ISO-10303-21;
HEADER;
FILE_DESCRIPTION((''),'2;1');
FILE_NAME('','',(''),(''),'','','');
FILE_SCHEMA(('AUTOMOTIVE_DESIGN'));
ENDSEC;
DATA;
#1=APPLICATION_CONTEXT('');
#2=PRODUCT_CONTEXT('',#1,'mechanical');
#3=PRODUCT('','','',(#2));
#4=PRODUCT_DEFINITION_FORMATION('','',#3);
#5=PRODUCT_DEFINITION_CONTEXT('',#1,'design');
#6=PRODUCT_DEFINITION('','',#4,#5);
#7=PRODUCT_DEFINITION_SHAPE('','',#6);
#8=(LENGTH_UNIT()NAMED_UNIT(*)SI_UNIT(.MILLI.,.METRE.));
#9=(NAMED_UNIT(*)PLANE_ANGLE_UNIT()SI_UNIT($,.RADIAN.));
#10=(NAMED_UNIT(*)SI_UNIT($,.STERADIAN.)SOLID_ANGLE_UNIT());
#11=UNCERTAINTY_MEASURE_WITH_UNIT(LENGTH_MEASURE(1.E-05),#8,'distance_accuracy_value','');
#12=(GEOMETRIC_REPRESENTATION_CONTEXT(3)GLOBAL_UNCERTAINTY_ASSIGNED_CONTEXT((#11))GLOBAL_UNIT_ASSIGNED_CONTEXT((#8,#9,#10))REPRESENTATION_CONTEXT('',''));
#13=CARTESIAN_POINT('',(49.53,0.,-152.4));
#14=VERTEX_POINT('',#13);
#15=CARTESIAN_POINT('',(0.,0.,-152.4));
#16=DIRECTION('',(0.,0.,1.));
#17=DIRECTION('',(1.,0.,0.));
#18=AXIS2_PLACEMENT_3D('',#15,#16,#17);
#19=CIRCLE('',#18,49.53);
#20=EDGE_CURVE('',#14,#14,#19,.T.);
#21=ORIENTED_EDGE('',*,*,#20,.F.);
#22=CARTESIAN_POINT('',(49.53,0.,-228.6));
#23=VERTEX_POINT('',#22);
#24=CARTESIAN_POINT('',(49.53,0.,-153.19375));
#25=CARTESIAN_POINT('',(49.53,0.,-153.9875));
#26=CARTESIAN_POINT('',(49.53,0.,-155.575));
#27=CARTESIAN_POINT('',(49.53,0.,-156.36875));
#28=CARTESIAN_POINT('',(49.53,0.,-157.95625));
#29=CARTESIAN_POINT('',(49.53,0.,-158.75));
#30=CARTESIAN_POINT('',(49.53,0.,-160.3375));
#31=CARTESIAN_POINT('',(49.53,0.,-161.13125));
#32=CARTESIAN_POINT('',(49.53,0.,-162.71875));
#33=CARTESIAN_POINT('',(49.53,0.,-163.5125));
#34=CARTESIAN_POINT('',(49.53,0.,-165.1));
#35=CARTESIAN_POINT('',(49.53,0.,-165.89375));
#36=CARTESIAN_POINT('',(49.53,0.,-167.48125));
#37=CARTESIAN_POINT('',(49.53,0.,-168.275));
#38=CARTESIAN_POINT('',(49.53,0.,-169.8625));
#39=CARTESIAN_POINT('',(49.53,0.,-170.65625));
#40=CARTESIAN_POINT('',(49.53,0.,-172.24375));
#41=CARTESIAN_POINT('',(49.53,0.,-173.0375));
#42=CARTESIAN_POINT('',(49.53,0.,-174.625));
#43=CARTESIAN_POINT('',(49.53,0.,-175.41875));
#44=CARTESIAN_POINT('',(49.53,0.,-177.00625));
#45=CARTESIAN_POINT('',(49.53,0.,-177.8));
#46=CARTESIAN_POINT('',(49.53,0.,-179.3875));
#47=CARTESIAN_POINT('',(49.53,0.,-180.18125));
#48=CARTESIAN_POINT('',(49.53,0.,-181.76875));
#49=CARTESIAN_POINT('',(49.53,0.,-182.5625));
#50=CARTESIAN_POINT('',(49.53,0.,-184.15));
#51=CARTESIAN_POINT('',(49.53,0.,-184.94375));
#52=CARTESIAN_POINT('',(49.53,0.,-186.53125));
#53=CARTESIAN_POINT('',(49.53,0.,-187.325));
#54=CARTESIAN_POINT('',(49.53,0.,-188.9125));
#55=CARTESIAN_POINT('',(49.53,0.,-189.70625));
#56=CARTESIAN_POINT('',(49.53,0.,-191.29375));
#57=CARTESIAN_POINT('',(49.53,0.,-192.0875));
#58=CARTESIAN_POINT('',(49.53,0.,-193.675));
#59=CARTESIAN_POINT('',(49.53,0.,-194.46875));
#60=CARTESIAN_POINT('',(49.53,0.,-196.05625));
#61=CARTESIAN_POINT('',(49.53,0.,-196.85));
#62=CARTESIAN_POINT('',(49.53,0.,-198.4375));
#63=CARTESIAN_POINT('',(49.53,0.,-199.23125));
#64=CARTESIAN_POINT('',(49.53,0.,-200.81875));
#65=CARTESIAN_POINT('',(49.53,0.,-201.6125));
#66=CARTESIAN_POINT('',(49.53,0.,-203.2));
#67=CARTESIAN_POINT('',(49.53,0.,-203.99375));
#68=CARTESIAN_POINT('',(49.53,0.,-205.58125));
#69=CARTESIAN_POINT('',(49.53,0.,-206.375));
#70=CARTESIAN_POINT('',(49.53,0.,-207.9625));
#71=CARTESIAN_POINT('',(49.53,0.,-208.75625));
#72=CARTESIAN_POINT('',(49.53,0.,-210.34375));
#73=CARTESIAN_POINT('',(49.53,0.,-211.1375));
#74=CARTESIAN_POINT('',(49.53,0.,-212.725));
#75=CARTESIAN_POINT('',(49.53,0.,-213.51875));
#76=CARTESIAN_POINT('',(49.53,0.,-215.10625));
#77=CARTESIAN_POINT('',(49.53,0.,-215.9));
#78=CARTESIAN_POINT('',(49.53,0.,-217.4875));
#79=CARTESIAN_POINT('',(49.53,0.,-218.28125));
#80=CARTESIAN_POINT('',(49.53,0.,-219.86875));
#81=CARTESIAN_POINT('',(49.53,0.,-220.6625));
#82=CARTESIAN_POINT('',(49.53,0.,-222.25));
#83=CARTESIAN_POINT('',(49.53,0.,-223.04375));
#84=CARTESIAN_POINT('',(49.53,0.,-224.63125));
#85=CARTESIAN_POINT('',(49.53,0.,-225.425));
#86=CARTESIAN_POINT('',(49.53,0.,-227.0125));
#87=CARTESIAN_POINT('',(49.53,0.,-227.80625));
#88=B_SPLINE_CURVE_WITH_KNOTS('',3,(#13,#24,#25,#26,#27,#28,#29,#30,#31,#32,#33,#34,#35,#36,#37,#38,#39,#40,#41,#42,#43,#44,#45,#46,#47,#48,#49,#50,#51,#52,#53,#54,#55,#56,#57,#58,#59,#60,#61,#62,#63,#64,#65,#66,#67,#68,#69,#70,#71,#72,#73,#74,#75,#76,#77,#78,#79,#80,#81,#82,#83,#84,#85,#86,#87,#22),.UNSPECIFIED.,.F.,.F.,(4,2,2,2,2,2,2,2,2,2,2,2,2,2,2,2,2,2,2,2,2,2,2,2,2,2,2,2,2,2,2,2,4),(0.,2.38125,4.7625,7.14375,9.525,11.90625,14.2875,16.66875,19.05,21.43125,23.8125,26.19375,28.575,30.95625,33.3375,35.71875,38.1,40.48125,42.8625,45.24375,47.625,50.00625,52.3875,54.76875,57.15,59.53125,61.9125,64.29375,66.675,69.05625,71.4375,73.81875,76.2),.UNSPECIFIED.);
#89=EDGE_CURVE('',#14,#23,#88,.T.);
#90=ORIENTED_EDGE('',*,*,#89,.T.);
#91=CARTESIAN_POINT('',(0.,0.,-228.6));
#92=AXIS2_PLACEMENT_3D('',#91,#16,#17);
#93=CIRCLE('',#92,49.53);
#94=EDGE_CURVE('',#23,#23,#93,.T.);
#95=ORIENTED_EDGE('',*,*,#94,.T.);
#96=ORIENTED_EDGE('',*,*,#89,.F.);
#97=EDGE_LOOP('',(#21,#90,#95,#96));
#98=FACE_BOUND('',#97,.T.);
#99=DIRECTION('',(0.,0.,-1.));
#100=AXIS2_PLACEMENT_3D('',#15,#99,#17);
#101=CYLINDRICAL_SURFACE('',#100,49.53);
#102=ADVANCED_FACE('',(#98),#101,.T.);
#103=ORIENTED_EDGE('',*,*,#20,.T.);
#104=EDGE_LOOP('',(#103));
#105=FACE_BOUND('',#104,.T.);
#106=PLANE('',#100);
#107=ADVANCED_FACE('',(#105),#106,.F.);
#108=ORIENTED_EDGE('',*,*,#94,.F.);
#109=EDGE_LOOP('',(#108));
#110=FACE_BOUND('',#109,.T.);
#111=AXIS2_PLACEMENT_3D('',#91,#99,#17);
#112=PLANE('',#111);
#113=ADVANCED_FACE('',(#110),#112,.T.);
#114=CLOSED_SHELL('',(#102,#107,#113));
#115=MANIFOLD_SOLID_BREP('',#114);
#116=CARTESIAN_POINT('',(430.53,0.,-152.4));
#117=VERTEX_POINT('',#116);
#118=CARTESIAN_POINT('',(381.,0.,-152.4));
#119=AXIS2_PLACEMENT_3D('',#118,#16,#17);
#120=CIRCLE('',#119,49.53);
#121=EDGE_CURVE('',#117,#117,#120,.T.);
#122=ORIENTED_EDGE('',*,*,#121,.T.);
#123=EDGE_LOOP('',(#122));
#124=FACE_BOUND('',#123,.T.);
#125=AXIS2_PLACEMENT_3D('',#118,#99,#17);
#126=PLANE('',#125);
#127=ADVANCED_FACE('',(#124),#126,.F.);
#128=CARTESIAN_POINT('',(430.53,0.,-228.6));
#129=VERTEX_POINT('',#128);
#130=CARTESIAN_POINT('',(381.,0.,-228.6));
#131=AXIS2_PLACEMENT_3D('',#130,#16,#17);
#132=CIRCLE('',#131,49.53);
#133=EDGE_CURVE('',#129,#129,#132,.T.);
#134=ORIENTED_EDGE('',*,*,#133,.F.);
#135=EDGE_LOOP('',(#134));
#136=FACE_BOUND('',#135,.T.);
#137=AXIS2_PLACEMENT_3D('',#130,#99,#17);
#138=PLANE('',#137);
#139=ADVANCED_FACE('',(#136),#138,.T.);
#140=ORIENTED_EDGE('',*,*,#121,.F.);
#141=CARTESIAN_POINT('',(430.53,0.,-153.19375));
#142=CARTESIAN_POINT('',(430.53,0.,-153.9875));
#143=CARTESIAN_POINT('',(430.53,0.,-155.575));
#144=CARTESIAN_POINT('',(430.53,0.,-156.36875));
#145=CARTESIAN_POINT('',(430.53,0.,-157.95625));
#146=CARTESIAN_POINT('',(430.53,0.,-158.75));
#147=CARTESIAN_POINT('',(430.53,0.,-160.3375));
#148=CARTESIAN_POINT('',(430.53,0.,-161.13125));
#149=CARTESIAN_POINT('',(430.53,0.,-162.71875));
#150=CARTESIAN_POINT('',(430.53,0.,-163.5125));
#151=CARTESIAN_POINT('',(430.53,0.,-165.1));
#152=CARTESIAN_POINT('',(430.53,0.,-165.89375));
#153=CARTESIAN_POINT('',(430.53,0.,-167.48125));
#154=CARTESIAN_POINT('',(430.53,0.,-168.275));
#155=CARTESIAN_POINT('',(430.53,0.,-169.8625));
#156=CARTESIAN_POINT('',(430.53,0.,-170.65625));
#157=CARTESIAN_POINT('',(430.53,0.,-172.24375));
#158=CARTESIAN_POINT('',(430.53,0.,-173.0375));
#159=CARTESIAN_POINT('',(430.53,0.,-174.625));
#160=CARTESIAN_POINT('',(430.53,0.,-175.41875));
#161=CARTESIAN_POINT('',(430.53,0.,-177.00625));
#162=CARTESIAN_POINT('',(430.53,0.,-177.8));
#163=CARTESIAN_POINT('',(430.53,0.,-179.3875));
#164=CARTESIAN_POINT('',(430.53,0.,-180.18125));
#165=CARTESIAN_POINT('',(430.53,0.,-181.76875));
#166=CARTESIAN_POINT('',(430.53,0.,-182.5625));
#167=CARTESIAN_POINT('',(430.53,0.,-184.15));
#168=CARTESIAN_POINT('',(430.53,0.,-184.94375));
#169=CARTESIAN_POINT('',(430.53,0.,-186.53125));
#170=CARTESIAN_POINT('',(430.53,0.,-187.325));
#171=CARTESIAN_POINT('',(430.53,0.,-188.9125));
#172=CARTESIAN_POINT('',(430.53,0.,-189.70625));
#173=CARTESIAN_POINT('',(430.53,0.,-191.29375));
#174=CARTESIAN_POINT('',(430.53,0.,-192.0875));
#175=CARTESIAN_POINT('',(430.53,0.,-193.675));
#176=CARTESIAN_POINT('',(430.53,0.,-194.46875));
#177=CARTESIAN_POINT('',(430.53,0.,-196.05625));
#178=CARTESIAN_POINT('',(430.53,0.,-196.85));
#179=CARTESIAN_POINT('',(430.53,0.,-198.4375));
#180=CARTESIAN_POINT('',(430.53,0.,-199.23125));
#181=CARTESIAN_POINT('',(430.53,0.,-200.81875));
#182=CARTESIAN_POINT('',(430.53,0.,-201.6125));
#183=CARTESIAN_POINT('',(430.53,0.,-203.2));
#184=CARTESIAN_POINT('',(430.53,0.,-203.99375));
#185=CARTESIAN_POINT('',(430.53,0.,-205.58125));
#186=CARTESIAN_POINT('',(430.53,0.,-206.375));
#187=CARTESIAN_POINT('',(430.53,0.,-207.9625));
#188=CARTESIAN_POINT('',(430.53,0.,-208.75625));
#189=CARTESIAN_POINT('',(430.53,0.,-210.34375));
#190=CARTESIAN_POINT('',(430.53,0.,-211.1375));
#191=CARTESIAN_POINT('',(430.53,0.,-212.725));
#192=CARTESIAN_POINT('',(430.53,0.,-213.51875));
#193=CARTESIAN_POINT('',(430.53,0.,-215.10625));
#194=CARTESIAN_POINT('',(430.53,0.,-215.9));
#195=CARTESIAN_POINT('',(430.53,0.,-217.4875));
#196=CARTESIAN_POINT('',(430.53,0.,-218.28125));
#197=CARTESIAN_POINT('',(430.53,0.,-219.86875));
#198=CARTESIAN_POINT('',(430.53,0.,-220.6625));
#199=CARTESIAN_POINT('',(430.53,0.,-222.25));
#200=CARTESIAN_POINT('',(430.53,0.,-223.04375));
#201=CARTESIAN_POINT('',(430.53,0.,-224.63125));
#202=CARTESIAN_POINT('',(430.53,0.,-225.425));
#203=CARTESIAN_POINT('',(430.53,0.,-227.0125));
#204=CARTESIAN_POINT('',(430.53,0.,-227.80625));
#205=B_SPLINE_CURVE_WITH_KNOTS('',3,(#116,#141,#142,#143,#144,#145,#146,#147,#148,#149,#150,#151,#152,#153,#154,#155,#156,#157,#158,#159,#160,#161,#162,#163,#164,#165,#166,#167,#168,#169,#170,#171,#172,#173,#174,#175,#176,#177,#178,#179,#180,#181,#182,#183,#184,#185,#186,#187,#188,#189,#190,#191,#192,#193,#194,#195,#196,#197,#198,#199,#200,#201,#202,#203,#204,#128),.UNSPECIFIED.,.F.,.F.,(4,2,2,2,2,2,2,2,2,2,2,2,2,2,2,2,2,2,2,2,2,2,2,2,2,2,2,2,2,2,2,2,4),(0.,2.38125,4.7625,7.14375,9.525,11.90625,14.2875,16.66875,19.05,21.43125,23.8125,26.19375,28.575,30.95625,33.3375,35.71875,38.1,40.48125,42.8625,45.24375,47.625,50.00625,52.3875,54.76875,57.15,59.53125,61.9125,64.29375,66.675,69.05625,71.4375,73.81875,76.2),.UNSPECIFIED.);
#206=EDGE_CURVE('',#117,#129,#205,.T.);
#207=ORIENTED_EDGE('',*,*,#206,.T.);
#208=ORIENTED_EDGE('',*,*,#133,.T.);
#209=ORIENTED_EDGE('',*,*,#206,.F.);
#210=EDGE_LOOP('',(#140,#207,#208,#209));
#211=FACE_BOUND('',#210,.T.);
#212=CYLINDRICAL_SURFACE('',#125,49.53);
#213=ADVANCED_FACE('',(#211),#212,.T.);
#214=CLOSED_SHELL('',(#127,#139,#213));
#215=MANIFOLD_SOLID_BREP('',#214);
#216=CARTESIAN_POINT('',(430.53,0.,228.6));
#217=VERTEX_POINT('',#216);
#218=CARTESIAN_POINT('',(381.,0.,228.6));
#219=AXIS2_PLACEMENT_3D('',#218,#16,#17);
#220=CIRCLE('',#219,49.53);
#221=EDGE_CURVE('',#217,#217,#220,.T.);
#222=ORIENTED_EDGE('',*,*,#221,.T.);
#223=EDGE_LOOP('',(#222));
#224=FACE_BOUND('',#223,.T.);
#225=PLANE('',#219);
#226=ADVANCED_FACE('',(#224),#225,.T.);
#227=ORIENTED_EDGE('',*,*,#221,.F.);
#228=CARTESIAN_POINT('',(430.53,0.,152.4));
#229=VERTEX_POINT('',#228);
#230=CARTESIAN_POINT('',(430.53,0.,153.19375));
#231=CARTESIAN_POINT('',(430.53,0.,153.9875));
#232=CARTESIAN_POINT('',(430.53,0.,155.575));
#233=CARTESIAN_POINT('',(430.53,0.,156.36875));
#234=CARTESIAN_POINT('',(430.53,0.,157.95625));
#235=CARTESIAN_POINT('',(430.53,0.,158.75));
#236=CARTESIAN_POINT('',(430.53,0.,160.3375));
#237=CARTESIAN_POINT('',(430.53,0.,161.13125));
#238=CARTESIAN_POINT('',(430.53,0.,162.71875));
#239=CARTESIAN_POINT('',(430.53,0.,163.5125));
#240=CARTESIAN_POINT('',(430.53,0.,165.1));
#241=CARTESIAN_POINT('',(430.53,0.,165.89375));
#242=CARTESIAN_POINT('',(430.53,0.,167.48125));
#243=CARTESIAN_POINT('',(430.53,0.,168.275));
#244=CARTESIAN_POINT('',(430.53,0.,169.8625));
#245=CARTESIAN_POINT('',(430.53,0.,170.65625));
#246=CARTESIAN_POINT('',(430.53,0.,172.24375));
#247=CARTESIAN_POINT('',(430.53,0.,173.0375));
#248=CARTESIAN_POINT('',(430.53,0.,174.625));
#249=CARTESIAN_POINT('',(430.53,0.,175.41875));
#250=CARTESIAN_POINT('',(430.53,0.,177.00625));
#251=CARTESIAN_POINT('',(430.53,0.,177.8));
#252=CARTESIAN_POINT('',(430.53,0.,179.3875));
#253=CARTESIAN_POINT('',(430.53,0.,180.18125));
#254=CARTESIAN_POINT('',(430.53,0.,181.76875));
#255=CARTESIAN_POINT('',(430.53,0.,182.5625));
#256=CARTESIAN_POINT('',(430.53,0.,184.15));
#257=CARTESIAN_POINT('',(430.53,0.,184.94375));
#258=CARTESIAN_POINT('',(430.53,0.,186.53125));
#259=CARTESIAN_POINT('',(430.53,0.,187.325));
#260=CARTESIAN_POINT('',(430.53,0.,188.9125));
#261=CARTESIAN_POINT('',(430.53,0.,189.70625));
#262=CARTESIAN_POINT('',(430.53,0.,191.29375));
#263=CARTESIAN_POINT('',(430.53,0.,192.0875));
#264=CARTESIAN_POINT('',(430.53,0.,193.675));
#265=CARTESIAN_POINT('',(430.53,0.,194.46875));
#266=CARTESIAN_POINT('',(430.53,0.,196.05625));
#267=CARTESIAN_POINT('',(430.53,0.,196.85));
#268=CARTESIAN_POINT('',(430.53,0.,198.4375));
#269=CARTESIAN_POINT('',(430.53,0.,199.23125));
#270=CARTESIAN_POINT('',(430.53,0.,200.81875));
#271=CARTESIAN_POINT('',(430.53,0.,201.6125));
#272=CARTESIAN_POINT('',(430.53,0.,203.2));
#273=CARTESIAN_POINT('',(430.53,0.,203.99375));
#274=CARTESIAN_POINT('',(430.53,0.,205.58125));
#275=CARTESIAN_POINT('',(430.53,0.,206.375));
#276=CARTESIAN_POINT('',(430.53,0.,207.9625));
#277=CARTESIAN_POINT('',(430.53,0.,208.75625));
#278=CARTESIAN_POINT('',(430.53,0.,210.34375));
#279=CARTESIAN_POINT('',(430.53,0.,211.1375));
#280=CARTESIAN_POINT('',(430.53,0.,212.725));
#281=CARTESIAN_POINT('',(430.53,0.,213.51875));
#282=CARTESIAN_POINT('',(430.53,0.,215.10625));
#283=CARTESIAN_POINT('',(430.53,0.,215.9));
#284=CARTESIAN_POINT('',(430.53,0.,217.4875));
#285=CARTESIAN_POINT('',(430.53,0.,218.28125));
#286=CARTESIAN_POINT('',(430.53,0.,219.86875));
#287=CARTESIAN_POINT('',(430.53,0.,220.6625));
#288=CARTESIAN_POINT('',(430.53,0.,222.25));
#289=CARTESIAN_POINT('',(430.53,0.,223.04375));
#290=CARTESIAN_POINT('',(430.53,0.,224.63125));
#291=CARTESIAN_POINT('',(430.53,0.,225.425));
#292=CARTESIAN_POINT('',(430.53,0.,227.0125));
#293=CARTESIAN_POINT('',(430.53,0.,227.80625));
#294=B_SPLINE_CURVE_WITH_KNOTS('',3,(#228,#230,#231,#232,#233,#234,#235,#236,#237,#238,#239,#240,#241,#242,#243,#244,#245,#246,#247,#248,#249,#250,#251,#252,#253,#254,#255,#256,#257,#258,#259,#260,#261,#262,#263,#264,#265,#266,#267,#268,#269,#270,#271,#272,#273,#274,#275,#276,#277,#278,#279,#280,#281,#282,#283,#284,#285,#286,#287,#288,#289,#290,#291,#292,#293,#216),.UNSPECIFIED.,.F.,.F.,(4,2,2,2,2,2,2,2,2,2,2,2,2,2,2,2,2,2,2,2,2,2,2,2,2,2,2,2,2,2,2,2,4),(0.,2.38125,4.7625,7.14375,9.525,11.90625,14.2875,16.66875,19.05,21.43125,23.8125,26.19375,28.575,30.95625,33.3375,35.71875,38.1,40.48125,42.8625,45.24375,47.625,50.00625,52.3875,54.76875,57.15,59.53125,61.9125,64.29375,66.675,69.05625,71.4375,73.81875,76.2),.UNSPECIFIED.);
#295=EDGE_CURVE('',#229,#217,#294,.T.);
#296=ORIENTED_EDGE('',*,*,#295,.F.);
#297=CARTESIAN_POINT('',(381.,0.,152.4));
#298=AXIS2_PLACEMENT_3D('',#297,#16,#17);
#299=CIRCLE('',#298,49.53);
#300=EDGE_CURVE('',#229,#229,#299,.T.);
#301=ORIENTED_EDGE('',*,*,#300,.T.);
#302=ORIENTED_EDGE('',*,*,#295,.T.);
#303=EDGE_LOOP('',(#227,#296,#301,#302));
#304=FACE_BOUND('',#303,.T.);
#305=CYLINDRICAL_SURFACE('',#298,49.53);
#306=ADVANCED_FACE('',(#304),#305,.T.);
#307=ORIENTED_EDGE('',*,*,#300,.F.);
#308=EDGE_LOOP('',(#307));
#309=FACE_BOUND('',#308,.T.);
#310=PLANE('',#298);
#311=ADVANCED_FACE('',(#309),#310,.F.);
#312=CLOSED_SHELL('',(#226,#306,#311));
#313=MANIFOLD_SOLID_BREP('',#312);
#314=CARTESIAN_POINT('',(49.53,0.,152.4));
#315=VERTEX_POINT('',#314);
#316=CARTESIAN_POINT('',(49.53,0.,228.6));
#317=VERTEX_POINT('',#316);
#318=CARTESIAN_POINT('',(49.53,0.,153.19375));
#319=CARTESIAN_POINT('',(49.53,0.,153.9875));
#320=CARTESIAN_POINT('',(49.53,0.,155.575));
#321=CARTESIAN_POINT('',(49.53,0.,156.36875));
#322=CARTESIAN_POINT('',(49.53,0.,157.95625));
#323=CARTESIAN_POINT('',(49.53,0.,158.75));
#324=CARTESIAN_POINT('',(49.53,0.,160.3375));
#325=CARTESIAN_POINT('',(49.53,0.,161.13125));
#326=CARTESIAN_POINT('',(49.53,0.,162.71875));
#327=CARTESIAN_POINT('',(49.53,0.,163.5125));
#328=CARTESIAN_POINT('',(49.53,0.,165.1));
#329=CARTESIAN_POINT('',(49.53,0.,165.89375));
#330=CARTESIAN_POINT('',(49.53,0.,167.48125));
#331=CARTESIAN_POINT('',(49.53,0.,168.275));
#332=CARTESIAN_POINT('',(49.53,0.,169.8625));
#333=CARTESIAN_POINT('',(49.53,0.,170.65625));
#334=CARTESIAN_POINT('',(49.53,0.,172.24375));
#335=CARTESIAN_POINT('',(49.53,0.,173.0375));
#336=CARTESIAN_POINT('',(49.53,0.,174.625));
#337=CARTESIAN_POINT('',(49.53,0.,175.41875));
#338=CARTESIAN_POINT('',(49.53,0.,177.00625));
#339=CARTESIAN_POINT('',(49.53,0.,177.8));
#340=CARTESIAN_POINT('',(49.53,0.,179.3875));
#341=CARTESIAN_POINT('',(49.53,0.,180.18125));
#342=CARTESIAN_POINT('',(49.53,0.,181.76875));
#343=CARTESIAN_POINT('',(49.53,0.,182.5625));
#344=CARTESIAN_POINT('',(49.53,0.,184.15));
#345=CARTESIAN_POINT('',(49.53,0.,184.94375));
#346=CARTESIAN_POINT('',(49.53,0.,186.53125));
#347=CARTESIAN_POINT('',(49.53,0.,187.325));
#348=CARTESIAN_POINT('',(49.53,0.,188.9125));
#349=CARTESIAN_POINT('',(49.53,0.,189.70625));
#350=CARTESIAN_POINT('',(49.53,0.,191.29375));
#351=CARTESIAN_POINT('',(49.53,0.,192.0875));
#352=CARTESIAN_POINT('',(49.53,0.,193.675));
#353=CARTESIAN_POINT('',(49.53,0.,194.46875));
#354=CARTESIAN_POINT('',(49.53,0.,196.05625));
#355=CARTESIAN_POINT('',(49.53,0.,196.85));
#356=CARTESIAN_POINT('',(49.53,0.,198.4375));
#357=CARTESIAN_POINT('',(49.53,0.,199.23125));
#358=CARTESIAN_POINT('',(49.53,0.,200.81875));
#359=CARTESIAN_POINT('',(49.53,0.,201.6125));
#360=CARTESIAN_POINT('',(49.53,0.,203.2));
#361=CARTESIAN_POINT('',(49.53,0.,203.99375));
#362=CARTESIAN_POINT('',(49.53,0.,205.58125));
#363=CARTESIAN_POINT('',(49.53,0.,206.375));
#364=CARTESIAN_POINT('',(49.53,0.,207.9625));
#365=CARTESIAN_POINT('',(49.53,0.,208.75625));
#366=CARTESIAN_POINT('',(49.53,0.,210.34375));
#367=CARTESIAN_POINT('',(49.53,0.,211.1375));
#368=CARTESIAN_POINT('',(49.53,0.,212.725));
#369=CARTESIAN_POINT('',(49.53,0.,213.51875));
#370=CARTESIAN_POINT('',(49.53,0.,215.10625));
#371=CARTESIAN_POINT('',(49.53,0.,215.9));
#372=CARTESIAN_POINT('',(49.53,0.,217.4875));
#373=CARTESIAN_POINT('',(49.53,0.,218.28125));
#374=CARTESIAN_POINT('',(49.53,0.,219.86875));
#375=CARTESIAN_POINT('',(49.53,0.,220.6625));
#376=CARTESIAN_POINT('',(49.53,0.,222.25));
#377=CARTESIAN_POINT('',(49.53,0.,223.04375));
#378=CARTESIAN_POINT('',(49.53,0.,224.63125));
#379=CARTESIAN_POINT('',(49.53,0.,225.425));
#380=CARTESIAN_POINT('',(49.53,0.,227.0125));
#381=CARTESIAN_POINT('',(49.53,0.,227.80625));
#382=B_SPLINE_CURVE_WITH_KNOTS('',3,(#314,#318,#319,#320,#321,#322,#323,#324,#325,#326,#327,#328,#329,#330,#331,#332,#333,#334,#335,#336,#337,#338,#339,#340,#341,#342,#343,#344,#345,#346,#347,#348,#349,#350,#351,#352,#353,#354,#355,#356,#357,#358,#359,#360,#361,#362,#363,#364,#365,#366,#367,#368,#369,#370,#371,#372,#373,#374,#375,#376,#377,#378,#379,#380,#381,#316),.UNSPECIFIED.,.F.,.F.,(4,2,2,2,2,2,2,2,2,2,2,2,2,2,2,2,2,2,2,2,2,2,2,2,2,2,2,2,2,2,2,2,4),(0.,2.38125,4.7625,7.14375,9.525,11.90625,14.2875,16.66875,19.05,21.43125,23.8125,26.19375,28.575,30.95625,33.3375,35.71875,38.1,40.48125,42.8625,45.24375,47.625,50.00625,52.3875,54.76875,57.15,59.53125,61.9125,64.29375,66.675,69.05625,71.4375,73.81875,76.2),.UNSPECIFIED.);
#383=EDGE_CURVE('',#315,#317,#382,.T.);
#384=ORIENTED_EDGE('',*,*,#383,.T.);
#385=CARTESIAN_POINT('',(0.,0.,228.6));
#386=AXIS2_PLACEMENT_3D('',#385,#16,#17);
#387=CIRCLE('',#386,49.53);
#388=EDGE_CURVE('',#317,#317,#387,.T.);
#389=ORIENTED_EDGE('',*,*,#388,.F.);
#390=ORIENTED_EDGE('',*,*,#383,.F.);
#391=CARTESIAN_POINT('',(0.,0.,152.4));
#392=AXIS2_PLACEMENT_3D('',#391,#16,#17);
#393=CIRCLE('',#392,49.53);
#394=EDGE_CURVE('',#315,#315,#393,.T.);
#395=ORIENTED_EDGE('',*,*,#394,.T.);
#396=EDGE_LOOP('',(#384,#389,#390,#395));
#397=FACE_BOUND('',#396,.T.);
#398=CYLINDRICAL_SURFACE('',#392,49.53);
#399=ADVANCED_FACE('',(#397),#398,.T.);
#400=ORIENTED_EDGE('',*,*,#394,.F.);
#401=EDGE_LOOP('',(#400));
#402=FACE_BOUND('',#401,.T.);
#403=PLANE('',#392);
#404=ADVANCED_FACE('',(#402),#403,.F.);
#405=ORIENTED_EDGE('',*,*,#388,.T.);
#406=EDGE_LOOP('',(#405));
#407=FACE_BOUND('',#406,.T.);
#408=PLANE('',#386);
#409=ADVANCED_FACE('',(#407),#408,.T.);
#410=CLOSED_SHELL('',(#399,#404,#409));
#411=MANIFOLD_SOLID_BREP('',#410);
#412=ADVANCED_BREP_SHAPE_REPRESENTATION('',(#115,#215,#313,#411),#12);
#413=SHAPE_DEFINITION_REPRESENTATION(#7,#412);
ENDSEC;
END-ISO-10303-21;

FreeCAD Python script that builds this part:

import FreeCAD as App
import Part
import Sketcher
from FreeCAD import Vector
Q = App.Units.Quantity

doc = App.newDocument("Part")
body = doc.addObject("PartDesign::Body", "Body")

# Sketch on XY plane
sketch1 = body.newObject("Sketcher::SketchObject", "Sketch")
sketch1.AttachmentSupport = (doc.getObject("XY_Plane"), [""])
sketch1.MapMode = "FlatFace"
sketch1.AttachmentOffset = App.Placement(Vector(0, 0, 9 * 25.4), App.Rotation())
sketch1.addGeometry(Part.Circle(Vector(0, 0, 0), Vector(0, 0, 1), 50), False)
sketch1.addConstraint([
    Sketcher.Constraint("Coincident", 0, 3, -1, 1),
    Sketcher.Constraint("Diameter", 0, Q("3.9 in")),
])
pad1 = body.newObject("PartDesign::Pad", "Pad")
pad1.Profile = sketch1
pad1.Length = Q("3 in")
pad1.Reversed = True
body2 = doc.addObject("PartDesign::Body", "Body001")

# Sketch on XY plane
sketch2 = body2.newObject("Sketcher::SketchObject", "Sketch001")
sketch2.AttachmentSupport = (doc.getObject("XY_Plane001"), [""])
sketch2.MapMode = "FlatFace"
sketch2.AttachmentOffset = App.Placement(Vector(0, 0, 9 * 25.4), App.Rotation())
sketch2.addGeometry(Part.Circle(Vector(381, 0, 0), Vector(0, 0, 1), 50), False)
sketch2.addConstraint([
    Sketcher.Constraint("PointOnObject", 0, 3, -1),
    Sketcher.Constraint("Diameter", 0, Q("3.9 in")),
    Sketcher.Constraint("DistanceX", -1, 1, 0, 3, Q("15 in")),
])
pad2 = body2.newObject("PartDesign::Pad", "Pad001")
pad2.Profile = sketch2
pad2.Length = Q("3 in")
pad2.Reversed = True
body3 = doc.addObject("PartDesign::Body", "Body002")
doc.recompute()

mirroring = doc.addObject("Part::Mirroring", "Mirroring")
mirroring.Source = body
mirroring.Base = Vector(0, 0, 0)
mirroring.Normal = Vector(0, 0, 1)
body3.BaseFeature = mirroring
doc.recompute()
body4 = doc.addObject("PartDesign::Body", "Body003")
doc.recompute()

mirroring2 = doc.addObject("Part::Mirroring", "Mirroring001")
mirroring2.Source = body2
mirroring2.Base = Vector(0, 0, 0)
mirroring2.Normal = Vector(0, 0, 1)
body4.BaseFeature = mirroring2
doc.recompute()
mirroring.Visibility = False
mirroring2.Visibility = False

doc.recompute()
